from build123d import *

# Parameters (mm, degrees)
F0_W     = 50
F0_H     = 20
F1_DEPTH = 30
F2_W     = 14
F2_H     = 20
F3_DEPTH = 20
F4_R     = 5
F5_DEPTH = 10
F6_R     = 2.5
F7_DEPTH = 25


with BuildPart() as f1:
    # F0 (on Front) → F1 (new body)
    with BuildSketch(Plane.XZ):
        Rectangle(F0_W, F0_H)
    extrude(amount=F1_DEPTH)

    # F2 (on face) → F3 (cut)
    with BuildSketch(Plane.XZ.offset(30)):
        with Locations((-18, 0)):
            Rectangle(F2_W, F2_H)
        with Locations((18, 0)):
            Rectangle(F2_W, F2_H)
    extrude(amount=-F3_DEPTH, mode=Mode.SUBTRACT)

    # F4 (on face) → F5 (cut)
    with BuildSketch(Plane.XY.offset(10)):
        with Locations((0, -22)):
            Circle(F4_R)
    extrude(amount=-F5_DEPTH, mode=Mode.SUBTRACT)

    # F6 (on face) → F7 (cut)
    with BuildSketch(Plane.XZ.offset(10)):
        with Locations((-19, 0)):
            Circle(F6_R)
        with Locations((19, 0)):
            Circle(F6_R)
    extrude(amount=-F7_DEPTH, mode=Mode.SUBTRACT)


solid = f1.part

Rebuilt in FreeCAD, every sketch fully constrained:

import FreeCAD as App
import Part
import Sketcher
from FreeCAD import Vector

doc = App.newDocument("Part")
body = doc.addObject("PartDesign::Body", "Body")

# Sketch on XZ plane
sketch1 = body.newObject("Sketcher::SketchObject", "Sketch")
sketch1.AttachmentSupport = (doc.getObject("XZ_Plane"), [""])
sketch1.MapMode = "FlatFace"
sketch1.addGeometry(Part.LineSegment(Vector(-25, 10, 0), Vector(-25, -10, 0)), False)
sketch1.addGeometry(Part.LineSegment(Vector(-25, -10, 0), Vector(25, -10, 0)), False)
sketch1.addGeometry(Part.LineSegment(Vector(25, -10, 0), Vector(25, 10, 0)), False)
sketch1.addGeometry(Part.LineSegment(Vector(25, 10, 0), Vector(-25, 10, 0)), False)
sketch1.addConstraint(Sketcher.Constraint("Coincident", 0, 2, 1, 1))
sketch1.addConstraint(Sketcher.Constraint("Coincident", 1, 2, 2, 1))
sketch1.addConstraint(Sketcher.Constraint("Coincident", 2, 2, 3, 1))
sketch1.addConstraint(Sketcher.Constraint("Coincident", 3, 2, 0, 1))
sketch1.addConstraint(Sketcher.Constraint("Vertical", 0))
sketch1.addConstraint(Sketcher.Constraint("Horizontal", 1))
sketch1.addConstraint(Sketcher.Constraint("Vertical", 2))
sketch1.addConstraint(Sketcher.Constraint("Horizontal", 3))
sketch1.addConstraint(Sketcher.Constraint("Symmetric", 0, 2, 2, 2, -1, 1))
sketch1.addConstraint(Sketcher.Constraint("DistanceX", 1, 1, 1, 2, 50.0))
sketch1.addConstraint(Sketcher.Constraint("DistanceY", 0, 2, 0, 1, 20.0))
pad1 = body.newObject("PartDesign::Pad", "Pad")
pad1.Profile = sketch1
pad1.Length = 30

# Sketch on XZ plane
sketch2 = body.newObject("Sketcher::SketchObject", "Sketch001")
sketch2.AttachmentSupport = (doc.getObject("XZ_Plane"), [""])
sketch2.MapMode = "FlatFace"
sketch2.AttachmentOffset = App.Placement(Vector(0, 0, 30), App.Rotation())
sketch2.addGeometry(Part.LineSegment(Vector(-25, 10, 0), Vector(-25, -10, 0)), False)
sketch2.addGeometry(Part.LineSegment(Vector(-25, -10, 0), Vector(-11, -10, 0)), False)
sketch2.addGeometry(Part.LineSegment(Vector(-11, -10, 0), Vector(-11, 10, 0)), False)
sketch2.addGeometry(Part.LineSegment(Vector(-11, 10, 0), Vector(-25, 10, 0)), False)
sketch2.addGeometry(Part.LineSegment(Vector(11, 10, 0), Vector(11, -10, 0)), False)
sketch2.addGeometry(Part.LineSegment(Vector(11, -10, 0), Vector(25, -10, 0)), False)
sketch2.addGeometry(Part.LineSegment(Vector(25, -10, 0), Vector(25, 10, 0)), False)
sketch2.addGeometry(Part.LineSegment(Vector(25, 10, 0), Vector(11, 10, 0)), False)
sketch2.addConstraint(Sketcher.Constraint("Coincident", 0, 2, 1, 1))
sketch2.addConstraint(Sketcher.Constraint("Coincident", 1, 2, 2, 1))
sketch2.addConstraint(Sketcher.Constraint("Coincident", 2, 2, 3, 1))
sketch2.addConstraint(Sketcher.Constraint("Coincident", 3, 2, 0, 1))
sketch2.addConstraint(Sketcher.Constraint("Coincident", 4, 2, 5, 1))
sketch2.addConstraint(Sketcher.Constraint("Coincident", 5, 2, 6, 1))
sketch2.addConstraint(Sketcher.Constraint("Coincident", 6, 2, 7, 1))
sketch2.addConstraint(Sketcher.Constraint("Coincident", 7, 2, 4, 1))
sketch2.addConstraint(Sketcher.Constraint("Vertical", 0))
sketch2.addConstraint(Sketcher.Constraint("Horizontal", 1))
sketch2.addConstraint(Sketcher.Constraint("Vertical", 2))
sketch2.addConstraint(Sketcher.Constraint("Horizontal", 3))
sketch2.addConstraint(Sketcher.Constraint("Vertical", 4))
sketch2.addConstraint(Sketcher.Constraint("Horizontal", 5))
sketch2.addConstraint(Sketcher.Constraint("Vertical", 6))
sketch2.addConstraint(Sketcher.Constraint("Horizontal", 7))
sketch2.addConstraint(Sketcher.Constraint("Symmetric", 2, 2, 4, 2, -1, 1))
sketch2.addConstraint(Sketcher.Constraint("Symmetric", 0, 2, 6, 2, -1, 1))
sketch2.addConstraint(Sketcher.Constraint("Horizontal", 1, 2, 4, 2))
sketch2.addConstraint(Sketcher.Constraint("DistanceX", 1, 1, 1, 2, 14.0))
sketch2.addConstraint(Sketcher.Constraint("DistanceY", 0, 2, 0, 1, 20.0))
sketch2.addConstraint(Sketcher.Constraint("DistanceX", 0, 2, -1, 1, 25.0))
pocket1 = body.newObject("PartDesign::Pocket", "Pocket")
pocket1.Profile = sketch2
pocket1.Length = 20

# Sketch on XY plane
sketch3 = body.newObject("Sketcher::SketchObject", "Sketch002")
sketch3.AttachmentSupport = (doc.getObject("XY_Plane"), [""])
sketch3.MapMode = "FlatFace"
sketch3.AttachmentOffset = App.Placement(Vector(0, 0, 10), App.Rotation())
sketch3.addGeometry(Part.Circle(Vector(0, -22, 0), Vector(0, 0, 1), 5), False)
sketch3.addConstraint(Sketcher.Constraint("PointOnObject", 0, 3, -2))
sketch3.addConstraint(Sketcher.Constraint("Diameter", 0, 10.0))
sketch3.addConstraint(Sketcher.Constraint("DistanceY", 0, 3, -1, 1, 22.0))
pocket2 = body.newObject("PartDesign::Pocket", "Pocket001")
pocket2.Profile = sketch3
pocket2.Length = 10

# Sketch on XZ plane
sketch4 = body.newObject("Sketcher::SketchObject", "Sketch003")
sketch4.AttachmentSupport = (doc.getObject("XZ_Plane"), [""])
sketch4.MapMode = "FlatFace"
sketch4.AttachmentOffset = App.Placement(Vector(0, 0, 10), App.Rotation())
sketch4.addGeometry(Part.Circle(Vector(-19, 0, 0), Vector(0, 0, 1), 2.5), False)
sketch4.addGeometry(Part.Circle(Vector(19, 0, 0), Vector(0, 0, 1), 2.5), False)
sketch4.addConstraint(Sketcher.Constraint("Equal", 0, 1))
sketch4.addConstraint(Sketcher.Constraint("Symmetric", 0, 3, 1, 3, -1, 1))
sketch4.addConstraint(Sketcher.Constraint("PointOnObject", 0, 3, -1))
sketch4.addConstraint(Sketcher.Constraint("Diameter", 0, 5.0))
sketch4.addConstraint(Sketcher.Constraint("DistanceX", 0, 3, -1, 1, 19.0))
pocket3 = body.newObject("PartDesign::Pocket", "Pocket002")
pocket3.Profile = sketch4
pocket3.Length = 25

doc.recompute()
